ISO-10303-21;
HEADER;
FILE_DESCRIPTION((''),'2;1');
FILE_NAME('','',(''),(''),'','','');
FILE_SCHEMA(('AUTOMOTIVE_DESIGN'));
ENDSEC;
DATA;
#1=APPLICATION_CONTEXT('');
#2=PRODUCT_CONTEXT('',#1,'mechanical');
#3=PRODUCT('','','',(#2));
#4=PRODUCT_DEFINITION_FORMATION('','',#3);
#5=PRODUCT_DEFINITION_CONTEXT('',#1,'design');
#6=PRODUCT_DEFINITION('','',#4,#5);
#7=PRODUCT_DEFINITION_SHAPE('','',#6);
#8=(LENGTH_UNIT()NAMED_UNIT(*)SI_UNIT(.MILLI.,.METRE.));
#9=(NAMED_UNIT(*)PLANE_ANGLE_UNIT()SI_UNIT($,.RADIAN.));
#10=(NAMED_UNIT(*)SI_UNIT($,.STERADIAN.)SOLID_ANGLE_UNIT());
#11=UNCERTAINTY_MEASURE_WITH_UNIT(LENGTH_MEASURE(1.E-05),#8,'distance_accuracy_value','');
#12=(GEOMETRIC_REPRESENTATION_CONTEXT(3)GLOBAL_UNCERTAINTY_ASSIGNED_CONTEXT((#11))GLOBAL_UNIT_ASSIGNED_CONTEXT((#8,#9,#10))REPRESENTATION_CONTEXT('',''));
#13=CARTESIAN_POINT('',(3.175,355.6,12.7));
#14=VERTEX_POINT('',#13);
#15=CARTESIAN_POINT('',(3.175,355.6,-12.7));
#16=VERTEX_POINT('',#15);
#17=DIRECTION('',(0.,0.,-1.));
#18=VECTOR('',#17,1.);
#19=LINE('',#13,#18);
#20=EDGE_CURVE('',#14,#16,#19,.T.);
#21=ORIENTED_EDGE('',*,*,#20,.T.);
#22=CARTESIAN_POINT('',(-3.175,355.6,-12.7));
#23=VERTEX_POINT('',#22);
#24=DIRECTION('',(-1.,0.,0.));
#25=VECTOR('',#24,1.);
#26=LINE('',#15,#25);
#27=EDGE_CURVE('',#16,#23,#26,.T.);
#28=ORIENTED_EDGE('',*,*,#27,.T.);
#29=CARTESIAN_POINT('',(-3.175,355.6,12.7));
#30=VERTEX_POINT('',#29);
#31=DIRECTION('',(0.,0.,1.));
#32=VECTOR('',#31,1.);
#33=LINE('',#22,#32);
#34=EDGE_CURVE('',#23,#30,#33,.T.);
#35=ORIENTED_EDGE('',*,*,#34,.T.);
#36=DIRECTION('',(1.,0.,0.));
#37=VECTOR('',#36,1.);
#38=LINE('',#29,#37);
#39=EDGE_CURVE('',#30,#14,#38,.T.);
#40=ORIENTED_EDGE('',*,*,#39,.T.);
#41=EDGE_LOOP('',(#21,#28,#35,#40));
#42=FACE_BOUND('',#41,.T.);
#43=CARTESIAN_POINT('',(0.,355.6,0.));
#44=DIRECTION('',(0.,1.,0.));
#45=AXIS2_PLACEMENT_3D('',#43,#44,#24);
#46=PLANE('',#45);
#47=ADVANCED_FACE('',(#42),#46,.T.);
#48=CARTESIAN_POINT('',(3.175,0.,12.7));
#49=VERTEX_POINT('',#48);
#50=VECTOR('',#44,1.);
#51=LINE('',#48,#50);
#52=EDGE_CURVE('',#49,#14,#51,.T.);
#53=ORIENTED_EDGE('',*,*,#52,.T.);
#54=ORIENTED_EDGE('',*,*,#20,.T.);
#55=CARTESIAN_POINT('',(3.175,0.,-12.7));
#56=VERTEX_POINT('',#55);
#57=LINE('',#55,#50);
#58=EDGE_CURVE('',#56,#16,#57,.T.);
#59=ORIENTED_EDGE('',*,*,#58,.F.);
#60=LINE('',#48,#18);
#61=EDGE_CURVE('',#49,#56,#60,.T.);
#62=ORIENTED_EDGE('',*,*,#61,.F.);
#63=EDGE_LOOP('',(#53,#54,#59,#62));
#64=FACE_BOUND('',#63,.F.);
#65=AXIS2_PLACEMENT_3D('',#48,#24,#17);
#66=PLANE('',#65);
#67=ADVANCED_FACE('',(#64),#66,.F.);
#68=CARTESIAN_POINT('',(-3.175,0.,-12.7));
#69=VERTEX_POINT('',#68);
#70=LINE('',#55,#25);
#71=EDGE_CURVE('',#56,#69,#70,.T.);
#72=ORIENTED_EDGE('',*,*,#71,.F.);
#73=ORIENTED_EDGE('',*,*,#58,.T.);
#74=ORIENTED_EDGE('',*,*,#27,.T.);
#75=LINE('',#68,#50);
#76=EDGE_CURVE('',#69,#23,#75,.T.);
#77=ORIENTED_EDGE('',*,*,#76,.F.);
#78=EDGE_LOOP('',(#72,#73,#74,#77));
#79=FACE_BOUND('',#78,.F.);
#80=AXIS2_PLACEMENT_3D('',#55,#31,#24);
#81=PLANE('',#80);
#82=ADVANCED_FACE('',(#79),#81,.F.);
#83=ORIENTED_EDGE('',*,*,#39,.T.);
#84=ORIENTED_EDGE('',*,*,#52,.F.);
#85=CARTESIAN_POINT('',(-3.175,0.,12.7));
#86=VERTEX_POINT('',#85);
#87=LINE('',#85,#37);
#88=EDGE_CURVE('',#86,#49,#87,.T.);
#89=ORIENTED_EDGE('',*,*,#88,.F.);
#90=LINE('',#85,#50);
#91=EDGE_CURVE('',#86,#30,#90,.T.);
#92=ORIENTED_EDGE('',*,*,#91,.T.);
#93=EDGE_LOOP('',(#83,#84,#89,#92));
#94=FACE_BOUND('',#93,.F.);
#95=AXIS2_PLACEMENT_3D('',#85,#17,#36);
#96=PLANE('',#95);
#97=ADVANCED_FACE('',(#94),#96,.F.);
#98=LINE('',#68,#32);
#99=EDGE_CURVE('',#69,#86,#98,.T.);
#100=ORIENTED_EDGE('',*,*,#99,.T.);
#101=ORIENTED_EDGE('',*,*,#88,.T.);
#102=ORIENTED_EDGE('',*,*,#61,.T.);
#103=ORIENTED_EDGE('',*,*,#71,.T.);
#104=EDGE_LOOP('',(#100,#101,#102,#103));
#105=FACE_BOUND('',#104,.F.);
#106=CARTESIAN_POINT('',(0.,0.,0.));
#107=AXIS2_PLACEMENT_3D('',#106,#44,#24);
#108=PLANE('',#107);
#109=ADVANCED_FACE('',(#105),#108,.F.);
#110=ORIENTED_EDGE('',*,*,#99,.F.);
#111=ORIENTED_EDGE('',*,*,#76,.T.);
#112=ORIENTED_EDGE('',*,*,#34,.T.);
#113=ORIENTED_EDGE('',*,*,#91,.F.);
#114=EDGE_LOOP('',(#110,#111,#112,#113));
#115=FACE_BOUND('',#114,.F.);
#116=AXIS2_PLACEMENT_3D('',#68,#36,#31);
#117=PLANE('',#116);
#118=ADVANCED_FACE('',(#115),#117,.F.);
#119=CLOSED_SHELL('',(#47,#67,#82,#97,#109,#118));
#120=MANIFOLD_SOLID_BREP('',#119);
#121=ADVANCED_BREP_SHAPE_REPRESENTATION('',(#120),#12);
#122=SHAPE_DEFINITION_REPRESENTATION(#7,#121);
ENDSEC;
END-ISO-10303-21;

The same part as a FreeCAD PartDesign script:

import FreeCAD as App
import Part
import Sketcher

V = App.Vector
Q = App.Units.Quantity


def add_polygon(sketch, points):
    """Adds a closed chain of lines whose ends are joined by coincident constraints."""
    first, n = sketch.GeometryCount, len(points)
    for a, b in zip(points, points[1:] + points[:1]):
        sketch.addGeometry(Part.LineSegment(App.Vector(*a, 0), App.Vector(*b, 0)), False)
    for i in range(n):
        sketch.addConstraint(Sketcher.Constraint("Coincident", first + i, 2, first + (i + 1) % n, 1))

doc = App.newDocument("Part")
params = doc.addObject("Spreadsheet::Sheet", "Params")
for row, (alias, value) in enumerate([
    ("sketch1_height", "1 in"),
    ("sketch1_width", "0.25 in"),
    ("pad1_length", "14 in"),
], start=1):
    params.set(f"A{row}", alias)
    params.set(f"B{row}", "=" + value)
    params.setAlias(f"B{row}", alias)

body = doc.addObject("PartDesign::Body", "Body")

sketch1 = body.newObject("Sketcher::SketchObject", "Sketch")
sketch1.AttachmentSupport = (doc.getObject("XZ_Plane"), [""])
sketch1.MapMode = "FlatFace"
add_polygon(sketch1, [(3.175, 12.7), (3.175, -12.7), (-3.175, -12.7), (-3.175, 12.7)])
sketch1.addConstraint([
    Sketcher.Constraint("Vertical", 0),
    Sketcher.Constraint("Horizontal", 1),
    Sketcher.Constraint("Vertical", 2),
    Sketcher.Constraint("Horizontal", 3),
    Sketcher.Constraint("Symmetric", 0, 2, 2, 2, -1, 1),
    Sketcher.Constraint("DistanceY", 0, 2, 0, 1, Q("1 in")),
    Sketcher.Constraint("DistanceX", 1, 2, 1, 1, Q("0.25 in")),
])
sketch1.setExpression("Constraints[9]", "Params.sketch1_height")
sketch1.setExpression("Constraints[10]", "Params.sketch1_width")
pad1 = body.newObject("PartDesign::Pad", "Pad")
pad1.Profile = sketch1
pad1.setExpression("Length", "Params.pad1_length")
pad1.Reversed = True

doc.recompute()
